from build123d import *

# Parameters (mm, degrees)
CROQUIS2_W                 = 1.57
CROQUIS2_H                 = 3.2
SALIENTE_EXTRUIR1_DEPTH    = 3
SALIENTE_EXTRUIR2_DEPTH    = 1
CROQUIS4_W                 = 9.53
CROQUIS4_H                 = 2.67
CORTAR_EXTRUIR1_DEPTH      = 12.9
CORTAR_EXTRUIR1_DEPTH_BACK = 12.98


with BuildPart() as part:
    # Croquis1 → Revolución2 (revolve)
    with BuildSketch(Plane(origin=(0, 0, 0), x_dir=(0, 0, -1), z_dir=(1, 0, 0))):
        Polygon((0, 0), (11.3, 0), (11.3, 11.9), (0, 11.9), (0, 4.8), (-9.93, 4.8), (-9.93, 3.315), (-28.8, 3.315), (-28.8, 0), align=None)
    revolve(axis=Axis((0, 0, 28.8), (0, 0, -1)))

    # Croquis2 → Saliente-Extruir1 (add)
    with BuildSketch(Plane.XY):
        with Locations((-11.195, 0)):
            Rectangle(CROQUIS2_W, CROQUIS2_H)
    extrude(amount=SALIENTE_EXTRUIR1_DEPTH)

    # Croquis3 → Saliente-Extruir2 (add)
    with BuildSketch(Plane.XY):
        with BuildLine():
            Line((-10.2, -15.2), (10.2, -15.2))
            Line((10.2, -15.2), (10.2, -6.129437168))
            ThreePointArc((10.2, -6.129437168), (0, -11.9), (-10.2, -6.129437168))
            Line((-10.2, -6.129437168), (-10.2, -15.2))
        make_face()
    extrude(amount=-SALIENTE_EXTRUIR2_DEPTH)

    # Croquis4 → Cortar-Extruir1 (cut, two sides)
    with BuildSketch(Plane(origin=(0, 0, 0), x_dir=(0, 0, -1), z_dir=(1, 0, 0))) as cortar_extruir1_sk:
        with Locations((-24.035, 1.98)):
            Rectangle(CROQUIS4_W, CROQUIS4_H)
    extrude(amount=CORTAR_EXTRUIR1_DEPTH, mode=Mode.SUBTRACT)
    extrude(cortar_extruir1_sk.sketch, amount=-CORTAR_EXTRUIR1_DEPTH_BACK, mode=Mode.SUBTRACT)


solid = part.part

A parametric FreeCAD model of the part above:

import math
import FreeCAD as App
import Part
import Sketcher

V = App.Vector
Q = App.Units.Quantity


def add_polygon(sketch, points):
    """Adds a closed chain of lines whose ends are joined by coincident constraints."""
    first, n = sketch.GeometryCount, len(points)
    for a, b in zip(points, points[1:] + points[:1]):
        sketch.addGeometry(Part.LineSegment(App.Vector(*a, 0), App.Vector(*b, 0)), False)
    for i in range(n):
        sketch.addConstraint(Sketcher.Constraint("Coincident", first + i, 2, first + (i + 1) % n, 1))

doc = App.newDocument("Part")
body = doc.addObject("PartDesign::Body", "Body")

sketch1 = body.newObject("Sketcher::SketchObject", "Sketch")
sketch1.AttachmentSupport = (doc.getObject("YZ_Plane"), [""])
sketch1.MapMode = "FlatFace"
add_polygon(sketch1, [(0, -11.3), (11.9, -11.3), (11.9, 0), (4.8, 0), (4.8, 9.9), (3.3, 9.9), (3.3, 28.8), (0, 28.8)])
sketch1.addConstraint(Sketcher.Constraint("Horizontal", 0))
sketch1.addConstraint(Sketcher.Constraint("Vertical", 1))
sketch1.addConstraint(Sketcher.Constraint("Horizontal", 2))
sketch1.addConstraint(Sketcher.Constraint("Vertical", 3))
sketch1.addConstraint(Sketcher.Constraint("Horizontal", 4))
sketch1.addConstraint(Sketcher.Constraint("Vertical", 5))
sketch1.addConstraint(Sketcher.Constraint("Horizontal", 6))
sketch1.addConstraint(Sketcher.Constraint("Vertical", 7))
sketch1.addConstraint(Sketcher.Constraint("PointOnObject", 1, 2, -1))
sketch1.addConstraint(Sketcher.Constraint("PointOnObject", 6, 2, -2))
sketch1.addConstraint(Sketcher.Constraint("DistanceX", 0, 1, 0, 2, Q("11.9 mm")))
sketch1.addConstraint(Sketcher.Constraint("DistanceX", 2, 2, 2, 1, Q("7.1 mm")))
sketch1.addConstraint(Sketcher.Constraint("DistanceY", 1, 1, 1, 2, Q("11.3 mm")))
sketch1.addConstraint(Sketcher.Constraint("DistanceY", 7, 2, 7, 1, Q("40.1 mm")))
sketch1.addConstraint(Sketcher.Constraint("DistanceY", 3, 1, 3, 2, Q("9.93 mm")))
sketch1.addConstraint(Sketcher.Constraint("DistanceX", 4, 2, 4, 1, Q("1.485 mm")))
revolution = body.newObject("PartDesign::Revolution", "Revolution")
revolution.Profile = sketch1
revolution.ReferenceAxis = (sketch1, ["V_Axis"])
revolution.Angle = 360

sketch2 = body.newObject("Sketcher::SketchObject", "Sketch001")
sketch2.AttachmentSupport = (doc.getObject("XY_Plane"), [""])
sketch2.MapMode = "FlatFace"
add_polygon(sketch2, [(-12, 1.6), (-12, -1.6), (-10.4, -1.6), (-10.4, 1.6)])
sketch2.addConstraint(Sketcher.Constraint("Vertical", 0))
sketch2.addConstraint(Sketcher.Constraint("Horizontal", 1))
sketch2.addConstraint(Sketcher.Constraint("Vertical", 2))
sketch2.addConstraint(Sketcher.Constraint("Horizontal", 3))
sketch2.addConstraint(Sketcher.Constraint("DistanceY", 0, 2, 0, 1, Q("3.2 mm")))
sketch2.addConstraint(Sketcher.Constraint("DistanceX", 1, 1, 1, 2, Q("1.57 mm")))
sketch2.addConstraint(Sketcher.Constraint("DistanceY", 0, 2, -1, 1, Q("1.6 mm")))
sketch2.addConstraint(Sketcher.Constraint("DistanceX", 0, 2, -1, 1, Q("11.98 mm")))
pad1 = body.newObject("PartDesign::Pad", "Pad")
pad1.Profile = sketch2
pad1.Length = 3

sketch3 = body.newObject("Sketcher::SketchObject", "Sketch002")
sketch3.AttachmentSupport = (doc.getObject("XY_Plane"), [""])
sketch3.MapMode = "FlatFace"
sketch3.addGeometry(Part.LineSegment(V(-10, -15, 0), V(10, -15, 0)), False)
sketch3.addGeometry(Part.LineSegment(V(10, -15, 0), V(10, -6, 0)), False)
sketch3.addGeometry(Part.ArcOfCircle(Part.Circle(V(0, 0, 0), V(0, 0, 1), 12), math.radians(-149), math.radians(-31)), False)
sketch3.addGeometry(Part.LineSegment(V(-10, -6, 0), V(-10, -15, 0)), False)
sketch3.addConstraint(Sketcher.Constraint("Coincident", 0, 2, 1, 1))
sketch3.addConstraint(Sketcher.Constraint("Coincident", 1, 2, 2, 2))
sketch3.addConstraint(Sketcher.Constraint("Coincident", 2, 1, 3, 1))
sketch3.addConstraint(Sketcher.Constraint("Coincident", 3, 2, 0, 1))
sketch3.addConstraint(Sketcher.Constraint("Horizontal", 0))
sketch3.addConstraint(Sketcher.Constraint("Vertical", 1))
sketch3.addConstraint(Sketcher.Constraint("Vertical", 3))
sketch3.addConstraint(Sketcher.Constraint("Coincident", 2, 3, -1, 1))
sketch3.addConstraint(Sketcher.Constraint("Horizontal", 1, 2, 2, 1))
sketch3.addConstraint(Sketcher.Constraint("Radius", 2, Q("11.9 mm")))
sketch3.addConstraint(Sketcher.Constraint("DistanceX", 0, 1, 0, 2, Q("20.4 mm")))
sketch3.addConstraint(Sketcher.Constraint("DistanceY", 0, 2, -1, 1, Q("15.2 mm")))
pad2 = body.newObject("PartDesign::Pad", "Pad001")
pad2.Profile = sketch3
pad2.Length = 1
pad2.Reversed = True

sketch4 = body.newObject("Sketcher::SketchObject", "Sketch003")
sketch4.AttachmentSupport = (doc.getObject("YZ_Plane"), [""])
sketch4.MapMode = "FlatFace"
add_polygon(sketch4, [(3.3, 28.8), (0.6, 28.8), (0.6, 19.3), (3.3, 19.3)])
sketch4.addConstraint(Sketcher.Constraint("Horizontal", 0))
sketch4.addConstraint(Sketcher.Constraint("Vertical", 1))
sketch4.addConstraint(Sketcher.Constraint("Horizontal", 2))
sketch4.addConstraint(Sketcher.Constraint("Vertical", 3))
sketch4.addConstraint(Sketcher.Constraint("DistanceX", 0, 2, 0, 1, Q("2.67 mm")))
sketch4.addConstraint(Sketcher.Constraint("DistanceY", 1, 2, 1, 1, Q("9.53 mm")))
sketch4.addConstraint(Sketcher.Constraint("DistanceY", -1, 1, 0, 2, Q("28.8 mm")))
sketch4.addConstraint(Sketcher.Constraint("DistanceX", -1, 1, 0, 2, Q("0.645 mm")))
pocket1 = body.newObject("PartDesign::Pocket", "Pocket")
pocket1.Profile = sketch4
pocket1.Type = "ThroughAll"
pocket1.Midplane = True

doc.recompute()
